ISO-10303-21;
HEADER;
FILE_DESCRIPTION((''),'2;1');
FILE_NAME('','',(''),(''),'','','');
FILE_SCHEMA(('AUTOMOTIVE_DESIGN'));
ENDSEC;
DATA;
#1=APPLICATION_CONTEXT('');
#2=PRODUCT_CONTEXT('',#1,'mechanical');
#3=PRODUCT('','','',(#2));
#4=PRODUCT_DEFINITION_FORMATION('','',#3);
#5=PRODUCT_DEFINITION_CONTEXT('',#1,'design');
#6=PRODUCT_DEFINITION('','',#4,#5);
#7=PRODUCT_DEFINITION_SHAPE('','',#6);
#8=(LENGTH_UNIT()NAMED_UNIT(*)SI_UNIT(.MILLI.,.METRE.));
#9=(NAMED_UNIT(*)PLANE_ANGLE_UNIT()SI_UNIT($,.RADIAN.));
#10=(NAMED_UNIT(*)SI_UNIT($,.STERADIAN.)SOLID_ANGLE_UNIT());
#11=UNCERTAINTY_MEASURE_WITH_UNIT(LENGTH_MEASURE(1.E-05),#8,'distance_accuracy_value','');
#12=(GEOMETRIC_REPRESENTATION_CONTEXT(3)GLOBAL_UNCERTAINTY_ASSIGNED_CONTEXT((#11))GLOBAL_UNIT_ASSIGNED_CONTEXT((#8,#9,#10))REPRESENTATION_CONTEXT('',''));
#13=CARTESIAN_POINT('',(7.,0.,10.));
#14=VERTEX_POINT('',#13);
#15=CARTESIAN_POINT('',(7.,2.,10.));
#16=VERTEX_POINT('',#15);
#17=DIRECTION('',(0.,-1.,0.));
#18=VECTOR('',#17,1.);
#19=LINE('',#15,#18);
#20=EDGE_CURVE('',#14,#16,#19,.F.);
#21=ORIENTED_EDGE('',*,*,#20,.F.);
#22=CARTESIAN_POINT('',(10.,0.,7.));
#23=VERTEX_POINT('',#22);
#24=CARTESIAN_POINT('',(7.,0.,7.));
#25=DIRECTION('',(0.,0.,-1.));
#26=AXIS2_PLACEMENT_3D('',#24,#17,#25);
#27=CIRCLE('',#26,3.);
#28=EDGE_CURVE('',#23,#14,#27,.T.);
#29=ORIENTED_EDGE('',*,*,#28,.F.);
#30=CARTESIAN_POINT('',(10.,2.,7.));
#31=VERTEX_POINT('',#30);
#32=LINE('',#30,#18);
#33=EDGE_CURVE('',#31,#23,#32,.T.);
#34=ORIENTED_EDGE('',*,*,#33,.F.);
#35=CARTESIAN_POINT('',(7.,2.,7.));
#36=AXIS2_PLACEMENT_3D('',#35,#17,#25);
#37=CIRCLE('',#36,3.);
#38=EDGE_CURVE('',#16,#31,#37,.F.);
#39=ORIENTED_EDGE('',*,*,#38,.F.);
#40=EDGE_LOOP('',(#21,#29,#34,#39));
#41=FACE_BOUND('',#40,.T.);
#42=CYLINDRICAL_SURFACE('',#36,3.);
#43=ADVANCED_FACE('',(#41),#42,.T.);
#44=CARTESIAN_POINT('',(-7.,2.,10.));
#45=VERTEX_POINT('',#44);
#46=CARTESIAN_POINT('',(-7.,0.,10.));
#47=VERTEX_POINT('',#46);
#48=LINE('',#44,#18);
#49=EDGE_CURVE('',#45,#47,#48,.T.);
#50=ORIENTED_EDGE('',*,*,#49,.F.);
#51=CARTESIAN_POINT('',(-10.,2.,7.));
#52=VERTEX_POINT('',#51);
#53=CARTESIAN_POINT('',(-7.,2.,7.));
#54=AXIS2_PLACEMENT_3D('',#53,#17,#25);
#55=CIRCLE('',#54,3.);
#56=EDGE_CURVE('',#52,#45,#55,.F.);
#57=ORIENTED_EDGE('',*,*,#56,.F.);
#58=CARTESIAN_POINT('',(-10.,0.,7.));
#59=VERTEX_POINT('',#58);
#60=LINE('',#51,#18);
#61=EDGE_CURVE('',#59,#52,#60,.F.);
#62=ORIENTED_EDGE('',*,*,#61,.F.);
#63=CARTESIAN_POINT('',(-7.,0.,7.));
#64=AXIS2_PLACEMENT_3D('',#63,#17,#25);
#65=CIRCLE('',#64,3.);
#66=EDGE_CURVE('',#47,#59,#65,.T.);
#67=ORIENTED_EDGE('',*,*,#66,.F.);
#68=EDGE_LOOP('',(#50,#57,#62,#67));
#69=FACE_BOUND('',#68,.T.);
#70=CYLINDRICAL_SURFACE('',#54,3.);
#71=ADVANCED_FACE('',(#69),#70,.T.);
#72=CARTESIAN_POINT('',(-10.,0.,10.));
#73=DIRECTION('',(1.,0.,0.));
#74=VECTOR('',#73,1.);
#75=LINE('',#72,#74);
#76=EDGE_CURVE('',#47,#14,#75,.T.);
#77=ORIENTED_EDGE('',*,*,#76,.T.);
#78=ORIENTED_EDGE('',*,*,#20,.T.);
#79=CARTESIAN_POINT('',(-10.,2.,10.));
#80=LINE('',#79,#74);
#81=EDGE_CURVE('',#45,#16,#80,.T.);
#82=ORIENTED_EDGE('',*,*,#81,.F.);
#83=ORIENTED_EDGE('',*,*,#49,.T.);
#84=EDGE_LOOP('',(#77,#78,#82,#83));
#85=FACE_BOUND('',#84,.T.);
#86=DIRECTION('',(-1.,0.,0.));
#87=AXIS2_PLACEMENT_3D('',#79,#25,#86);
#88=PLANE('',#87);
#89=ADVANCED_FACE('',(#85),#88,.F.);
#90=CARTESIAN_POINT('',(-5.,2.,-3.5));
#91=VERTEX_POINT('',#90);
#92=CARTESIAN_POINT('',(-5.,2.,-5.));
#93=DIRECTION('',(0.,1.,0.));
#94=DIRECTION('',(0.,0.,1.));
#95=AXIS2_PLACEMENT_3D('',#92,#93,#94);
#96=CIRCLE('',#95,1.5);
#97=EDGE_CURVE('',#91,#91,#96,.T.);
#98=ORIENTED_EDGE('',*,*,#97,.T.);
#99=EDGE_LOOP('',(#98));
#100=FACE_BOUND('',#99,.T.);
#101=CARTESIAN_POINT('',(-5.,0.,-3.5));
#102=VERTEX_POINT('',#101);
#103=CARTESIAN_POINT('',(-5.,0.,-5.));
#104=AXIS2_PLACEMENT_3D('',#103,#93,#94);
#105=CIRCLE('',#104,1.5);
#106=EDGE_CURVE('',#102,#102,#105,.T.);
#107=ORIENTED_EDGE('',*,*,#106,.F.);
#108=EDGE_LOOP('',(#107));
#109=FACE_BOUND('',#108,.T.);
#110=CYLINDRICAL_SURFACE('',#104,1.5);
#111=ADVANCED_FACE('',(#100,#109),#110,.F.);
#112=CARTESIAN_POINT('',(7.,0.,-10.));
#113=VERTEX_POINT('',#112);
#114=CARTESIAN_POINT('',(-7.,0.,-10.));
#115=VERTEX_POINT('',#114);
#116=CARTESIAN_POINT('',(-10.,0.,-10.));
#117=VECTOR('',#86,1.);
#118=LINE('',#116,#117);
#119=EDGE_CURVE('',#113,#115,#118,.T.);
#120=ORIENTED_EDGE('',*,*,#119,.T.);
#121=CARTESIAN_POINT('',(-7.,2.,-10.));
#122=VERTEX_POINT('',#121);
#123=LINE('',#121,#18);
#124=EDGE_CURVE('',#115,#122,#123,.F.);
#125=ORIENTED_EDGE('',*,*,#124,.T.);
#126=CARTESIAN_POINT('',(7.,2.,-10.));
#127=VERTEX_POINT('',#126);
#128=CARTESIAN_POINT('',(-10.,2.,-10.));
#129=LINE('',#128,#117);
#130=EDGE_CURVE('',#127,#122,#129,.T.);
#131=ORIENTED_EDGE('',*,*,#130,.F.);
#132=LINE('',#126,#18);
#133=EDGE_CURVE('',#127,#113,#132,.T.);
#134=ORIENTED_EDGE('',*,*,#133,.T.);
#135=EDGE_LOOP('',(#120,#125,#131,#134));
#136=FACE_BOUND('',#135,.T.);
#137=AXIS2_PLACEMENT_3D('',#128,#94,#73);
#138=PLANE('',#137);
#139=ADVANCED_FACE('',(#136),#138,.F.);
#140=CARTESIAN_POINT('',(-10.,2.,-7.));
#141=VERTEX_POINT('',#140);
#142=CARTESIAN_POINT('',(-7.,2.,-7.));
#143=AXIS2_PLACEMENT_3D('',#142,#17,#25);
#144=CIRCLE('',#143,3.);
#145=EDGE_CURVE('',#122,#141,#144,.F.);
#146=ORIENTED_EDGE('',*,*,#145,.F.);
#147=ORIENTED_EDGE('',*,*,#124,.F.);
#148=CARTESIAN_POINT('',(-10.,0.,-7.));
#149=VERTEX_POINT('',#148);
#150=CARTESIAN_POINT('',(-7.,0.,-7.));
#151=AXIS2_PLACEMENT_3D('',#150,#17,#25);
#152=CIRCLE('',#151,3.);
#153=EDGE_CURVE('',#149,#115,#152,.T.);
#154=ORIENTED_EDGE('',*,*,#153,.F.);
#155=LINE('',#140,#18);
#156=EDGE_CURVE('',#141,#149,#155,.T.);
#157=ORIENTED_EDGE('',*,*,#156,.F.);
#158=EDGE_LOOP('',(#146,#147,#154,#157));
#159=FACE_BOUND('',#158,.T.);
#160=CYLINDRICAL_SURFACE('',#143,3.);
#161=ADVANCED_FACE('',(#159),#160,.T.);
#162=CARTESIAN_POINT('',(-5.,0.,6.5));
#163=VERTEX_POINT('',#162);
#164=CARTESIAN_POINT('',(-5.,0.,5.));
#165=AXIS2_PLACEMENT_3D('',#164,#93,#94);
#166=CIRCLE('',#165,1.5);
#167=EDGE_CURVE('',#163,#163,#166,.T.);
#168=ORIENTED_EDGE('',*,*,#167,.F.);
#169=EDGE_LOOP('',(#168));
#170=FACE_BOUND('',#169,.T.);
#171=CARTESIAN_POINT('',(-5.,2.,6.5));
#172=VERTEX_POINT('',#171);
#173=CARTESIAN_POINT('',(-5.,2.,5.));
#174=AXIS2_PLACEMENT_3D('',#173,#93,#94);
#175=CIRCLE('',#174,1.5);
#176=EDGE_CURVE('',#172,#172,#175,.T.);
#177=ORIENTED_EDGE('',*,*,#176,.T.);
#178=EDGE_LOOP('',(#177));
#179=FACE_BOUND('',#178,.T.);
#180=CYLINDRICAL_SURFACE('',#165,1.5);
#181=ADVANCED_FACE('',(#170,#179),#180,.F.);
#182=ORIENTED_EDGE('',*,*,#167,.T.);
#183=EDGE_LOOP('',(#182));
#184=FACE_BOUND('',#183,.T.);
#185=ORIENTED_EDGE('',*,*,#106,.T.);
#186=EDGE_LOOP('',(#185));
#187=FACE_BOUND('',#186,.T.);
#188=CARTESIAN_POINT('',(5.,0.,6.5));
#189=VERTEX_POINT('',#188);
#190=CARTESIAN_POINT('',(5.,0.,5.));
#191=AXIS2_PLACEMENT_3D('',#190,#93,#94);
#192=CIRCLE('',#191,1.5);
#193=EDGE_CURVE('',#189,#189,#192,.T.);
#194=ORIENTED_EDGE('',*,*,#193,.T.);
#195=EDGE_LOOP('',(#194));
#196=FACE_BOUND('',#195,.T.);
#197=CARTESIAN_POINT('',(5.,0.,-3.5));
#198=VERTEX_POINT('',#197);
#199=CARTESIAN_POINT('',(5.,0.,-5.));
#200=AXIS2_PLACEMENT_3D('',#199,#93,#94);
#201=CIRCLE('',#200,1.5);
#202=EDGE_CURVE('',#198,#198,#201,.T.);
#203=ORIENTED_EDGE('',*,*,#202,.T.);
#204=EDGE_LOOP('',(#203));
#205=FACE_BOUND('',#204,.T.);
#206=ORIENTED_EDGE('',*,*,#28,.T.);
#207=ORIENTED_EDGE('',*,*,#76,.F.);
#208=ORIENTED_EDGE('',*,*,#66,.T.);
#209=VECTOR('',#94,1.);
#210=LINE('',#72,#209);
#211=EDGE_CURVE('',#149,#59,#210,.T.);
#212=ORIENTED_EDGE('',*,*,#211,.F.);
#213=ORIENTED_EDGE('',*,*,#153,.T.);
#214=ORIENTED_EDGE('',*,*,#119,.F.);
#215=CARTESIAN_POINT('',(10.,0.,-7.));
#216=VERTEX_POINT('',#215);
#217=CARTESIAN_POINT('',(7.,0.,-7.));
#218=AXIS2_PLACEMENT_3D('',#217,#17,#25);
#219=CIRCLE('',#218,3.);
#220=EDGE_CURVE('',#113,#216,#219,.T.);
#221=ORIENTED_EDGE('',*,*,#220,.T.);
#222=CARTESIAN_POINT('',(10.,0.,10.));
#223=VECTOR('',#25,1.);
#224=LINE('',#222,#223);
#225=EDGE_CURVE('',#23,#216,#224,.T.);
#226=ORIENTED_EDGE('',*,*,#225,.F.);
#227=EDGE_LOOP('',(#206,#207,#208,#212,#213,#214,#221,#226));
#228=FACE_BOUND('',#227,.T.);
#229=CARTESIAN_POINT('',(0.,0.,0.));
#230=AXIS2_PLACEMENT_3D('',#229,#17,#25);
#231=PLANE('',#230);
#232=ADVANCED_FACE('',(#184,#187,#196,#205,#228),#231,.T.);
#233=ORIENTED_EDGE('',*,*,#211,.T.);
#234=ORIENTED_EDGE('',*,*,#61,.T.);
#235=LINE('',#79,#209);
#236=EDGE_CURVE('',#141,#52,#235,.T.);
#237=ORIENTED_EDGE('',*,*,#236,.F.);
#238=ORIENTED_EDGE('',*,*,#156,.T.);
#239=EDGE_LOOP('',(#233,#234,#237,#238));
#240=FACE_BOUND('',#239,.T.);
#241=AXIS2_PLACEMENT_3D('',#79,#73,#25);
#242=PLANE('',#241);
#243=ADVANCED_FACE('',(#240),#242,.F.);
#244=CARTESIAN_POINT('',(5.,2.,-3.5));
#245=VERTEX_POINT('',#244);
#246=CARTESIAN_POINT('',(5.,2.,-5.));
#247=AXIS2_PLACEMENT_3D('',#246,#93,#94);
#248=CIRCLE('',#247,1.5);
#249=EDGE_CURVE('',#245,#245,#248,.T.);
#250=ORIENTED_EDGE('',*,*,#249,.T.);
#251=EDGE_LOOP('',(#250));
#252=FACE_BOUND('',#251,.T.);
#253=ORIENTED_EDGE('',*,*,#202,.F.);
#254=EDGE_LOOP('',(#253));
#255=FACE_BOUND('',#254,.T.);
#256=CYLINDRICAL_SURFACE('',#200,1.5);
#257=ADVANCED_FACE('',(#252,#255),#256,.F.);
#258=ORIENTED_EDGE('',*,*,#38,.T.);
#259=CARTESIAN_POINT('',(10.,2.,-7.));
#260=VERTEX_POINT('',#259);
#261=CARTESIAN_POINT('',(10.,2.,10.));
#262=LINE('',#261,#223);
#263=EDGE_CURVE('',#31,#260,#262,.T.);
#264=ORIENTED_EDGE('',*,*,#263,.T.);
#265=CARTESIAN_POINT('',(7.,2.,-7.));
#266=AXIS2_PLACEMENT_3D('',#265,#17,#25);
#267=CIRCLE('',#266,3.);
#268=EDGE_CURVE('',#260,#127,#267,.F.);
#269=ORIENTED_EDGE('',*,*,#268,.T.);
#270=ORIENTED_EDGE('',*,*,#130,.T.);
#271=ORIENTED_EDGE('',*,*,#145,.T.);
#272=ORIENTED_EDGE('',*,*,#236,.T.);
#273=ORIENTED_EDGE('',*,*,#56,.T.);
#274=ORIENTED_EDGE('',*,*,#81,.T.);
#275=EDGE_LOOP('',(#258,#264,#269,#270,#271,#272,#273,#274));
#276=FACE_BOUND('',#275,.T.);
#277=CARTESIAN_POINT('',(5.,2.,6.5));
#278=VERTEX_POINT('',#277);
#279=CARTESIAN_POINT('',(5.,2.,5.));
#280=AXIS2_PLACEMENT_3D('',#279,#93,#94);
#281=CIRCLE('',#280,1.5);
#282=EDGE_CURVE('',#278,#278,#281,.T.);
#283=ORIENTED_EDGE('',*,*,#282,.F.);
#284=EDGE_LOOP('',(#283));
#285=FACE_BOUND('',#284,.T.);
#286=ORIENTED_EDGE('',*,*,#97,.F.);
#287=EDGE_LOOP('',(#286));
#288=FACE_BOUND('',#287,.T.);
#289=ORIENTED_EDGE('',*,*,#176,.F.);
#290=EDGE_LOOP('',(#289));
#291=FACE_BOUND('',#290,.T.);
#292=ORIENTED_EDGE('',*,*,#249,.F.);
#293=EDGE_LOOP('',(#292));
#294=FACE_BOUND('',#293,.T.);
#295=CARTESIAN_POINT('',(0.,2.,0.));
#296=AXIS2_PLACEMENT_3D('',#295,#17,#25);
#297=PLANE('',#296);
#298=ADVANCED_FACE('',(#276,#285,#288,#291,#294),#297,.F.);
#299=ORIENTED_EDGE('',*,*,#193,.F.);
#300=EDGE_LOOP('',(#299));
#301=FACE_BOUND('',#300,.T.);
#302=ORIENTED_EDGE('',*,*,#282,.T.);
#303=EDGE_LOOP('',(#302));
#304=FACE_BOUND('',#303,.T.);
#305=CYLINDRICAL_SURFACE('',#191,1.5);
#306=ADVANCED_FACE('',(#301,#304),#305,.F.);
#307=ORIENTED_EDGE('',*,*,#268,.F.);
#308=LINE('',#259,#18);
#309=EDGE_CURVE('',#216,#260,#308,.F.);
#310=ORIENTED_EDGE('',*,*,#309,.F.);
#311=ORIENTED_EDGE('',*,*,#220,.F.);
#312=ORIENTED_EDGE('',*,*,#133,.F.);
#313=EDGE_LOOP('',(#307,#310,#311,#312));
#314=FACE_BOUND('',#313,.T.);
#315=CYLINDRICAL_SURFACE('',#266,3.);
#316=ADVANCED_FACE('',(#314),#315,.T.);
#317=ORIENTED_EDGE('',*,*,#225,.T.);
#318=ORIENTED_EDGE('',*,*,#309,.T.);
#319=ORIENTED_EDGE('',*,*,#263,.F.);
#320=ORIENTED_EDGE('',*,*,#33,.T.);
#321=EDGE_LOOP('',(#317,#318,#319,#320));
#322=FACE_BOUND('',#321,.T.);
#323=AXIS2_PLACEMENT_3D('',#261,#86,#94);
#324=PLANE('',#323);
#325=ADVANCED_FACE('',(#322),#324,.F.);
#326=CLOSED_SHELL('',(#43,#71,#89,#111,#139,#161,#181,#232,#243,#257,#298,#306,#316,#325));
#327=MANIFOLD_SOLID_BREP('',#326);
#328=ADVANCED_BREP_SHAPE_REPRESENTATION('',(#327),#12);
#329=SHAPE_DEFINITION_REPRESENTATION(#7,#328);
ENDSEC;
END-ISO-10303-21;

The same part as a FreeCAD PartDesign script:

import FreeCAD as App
import Part
import Sketcher
from FreeCAD import Vector


def edges_at(feature, points):
    """Names of the edges that pass closest to the given points."""
    edges = feature.Shape.Edges
    near = lambda p: min(range(len(edges)), key=lambda i: edges[i].distToShape(Part.Vertex(*p))[0])
    return sorted({f"Edge{near(p) + 1}" for p in points})

doc = App.newDocument("Part")
body = doc.addObject("PartDesign::Body", "Body")

# Sketch on XZ plane
sketch1 = body.newObject("Sketcher::SketchObject", "Sketch")
sketch1.AttachmentSupport = (doc.getObject("XZ_Plane"), [""])
sketch1.MapMode = "FlatFace"
sketch1.addGeometry([
    Part.LineSegment(Vector(-10, -10, 0), Vector(-10, 10, 0)),
    Part.LineSegment(Vector(-10, 10, 0), Vector(10, 10, 0)),
    Part.LineSegment(Vector(10, 10, 0), Vector(10, -10, 0)),
    Part.LineSegment(Vector(10, -10, 0), Vector(-10, -10, 0)),
], False)
sketch1.addConstraint([
    Sketcher.Constraint("Coincident", 0, 2, 1, 1),
    Sketcher.Constraint("Coincident", 1, 2, 2, 1),
    Sketcher.Constraint("Coincident", 2, 2, 3, 1),
    Sketcher.Constraint("Coincident", 3, 2, 0, 1),
    Sketcher.Constraint("Vertical", 0),
    Sketcher.Constraint("Horizontal", 1),
    Sketcher.Constraint("Vertical", 2),
    Sketcher.Constraint("Horizontal", 3),
    Sketcher.Constraint("Symmetric", 0, 2, 2, 2, -1, 1),
    Sketcher.Constraint("Equal", 3, 0),
    Sketcher.Constraint("DistanceX", 1, 1, 1, 2, 20.0),
])
pad1 = body.newObject("PartDesign::Pad", "Pad")
pad1.Profile = sketch1
pad1.Length = 2
pad1.Reversed = True

# Sketch on XZ plane
sketch2 = body.newObject("Sketcher::SketchObject", "Sketch001")
sketch2.AttachmentSupport = (doc.getObject("XZ_Plane"), [""])
sketch2.MapMode = "FlatFace"
sketch2.AttachmentOffset = App.Placement(Vector(0, 0, -2), App.Rotation())
sketch2.addGeometry([
    Part.Circle(Vector(-5, -5, 0), Vector(0, 0, 1), 1.5),
    Part.Circle(Vector(5, -5, 0), Vector(0, 0, 1), 1.5),
    Part.Circle(Vector(-5, 5, 0), Vector(0, 0, 1), 1.5),
    Part.Circle(Vector(5, 5, 0), Vector(0, 0, 1), 1.5),
], False)
sketch2.addConstraint([
    Sketcher.Constraint("Equal", 0, 1),
    Sketcher.Constraint("Equal", 1, 2),
    Sketcher.Constraint("Equal", 2, 3),
    Sketcher.Constraint("Symmetric", 1, 3, 2, 3, -1, 1),
    Sketcher.Constraint("Symmetric", 0, 3, 3, 3, -1, 1),
    Sketcher.Constraint("Symmetric", 0, 3, 1, 3, -2),
    Sketcher.Constraint("Diameter", 0, 3.0),
    Sketcher.Constraint("DistanceX", 0, 3, -1, 1, 5.0),
    Sketcher.Constraint("DistanceY", 0, 3, -1, 1, 5.0),
])
pocket1 = body.newObject("PartDesign::Pocket", "Pocket")
pocket1.Profile = sketch2
pocket1.Type = "ThroughAll"
pocket1.Reversed = True
doc.recompute()

fillet = body.newObject("PartDesign::Fillet", "Fillet")
fillet.Base = (pocket1, edges_at(pocket1, [
    (10, 1, 10),
    (-10, 1, 10),
    (-10, 1, -10),
    (10, 1, -10),
]))
fillet.Radius = 3

doc.recompute()
